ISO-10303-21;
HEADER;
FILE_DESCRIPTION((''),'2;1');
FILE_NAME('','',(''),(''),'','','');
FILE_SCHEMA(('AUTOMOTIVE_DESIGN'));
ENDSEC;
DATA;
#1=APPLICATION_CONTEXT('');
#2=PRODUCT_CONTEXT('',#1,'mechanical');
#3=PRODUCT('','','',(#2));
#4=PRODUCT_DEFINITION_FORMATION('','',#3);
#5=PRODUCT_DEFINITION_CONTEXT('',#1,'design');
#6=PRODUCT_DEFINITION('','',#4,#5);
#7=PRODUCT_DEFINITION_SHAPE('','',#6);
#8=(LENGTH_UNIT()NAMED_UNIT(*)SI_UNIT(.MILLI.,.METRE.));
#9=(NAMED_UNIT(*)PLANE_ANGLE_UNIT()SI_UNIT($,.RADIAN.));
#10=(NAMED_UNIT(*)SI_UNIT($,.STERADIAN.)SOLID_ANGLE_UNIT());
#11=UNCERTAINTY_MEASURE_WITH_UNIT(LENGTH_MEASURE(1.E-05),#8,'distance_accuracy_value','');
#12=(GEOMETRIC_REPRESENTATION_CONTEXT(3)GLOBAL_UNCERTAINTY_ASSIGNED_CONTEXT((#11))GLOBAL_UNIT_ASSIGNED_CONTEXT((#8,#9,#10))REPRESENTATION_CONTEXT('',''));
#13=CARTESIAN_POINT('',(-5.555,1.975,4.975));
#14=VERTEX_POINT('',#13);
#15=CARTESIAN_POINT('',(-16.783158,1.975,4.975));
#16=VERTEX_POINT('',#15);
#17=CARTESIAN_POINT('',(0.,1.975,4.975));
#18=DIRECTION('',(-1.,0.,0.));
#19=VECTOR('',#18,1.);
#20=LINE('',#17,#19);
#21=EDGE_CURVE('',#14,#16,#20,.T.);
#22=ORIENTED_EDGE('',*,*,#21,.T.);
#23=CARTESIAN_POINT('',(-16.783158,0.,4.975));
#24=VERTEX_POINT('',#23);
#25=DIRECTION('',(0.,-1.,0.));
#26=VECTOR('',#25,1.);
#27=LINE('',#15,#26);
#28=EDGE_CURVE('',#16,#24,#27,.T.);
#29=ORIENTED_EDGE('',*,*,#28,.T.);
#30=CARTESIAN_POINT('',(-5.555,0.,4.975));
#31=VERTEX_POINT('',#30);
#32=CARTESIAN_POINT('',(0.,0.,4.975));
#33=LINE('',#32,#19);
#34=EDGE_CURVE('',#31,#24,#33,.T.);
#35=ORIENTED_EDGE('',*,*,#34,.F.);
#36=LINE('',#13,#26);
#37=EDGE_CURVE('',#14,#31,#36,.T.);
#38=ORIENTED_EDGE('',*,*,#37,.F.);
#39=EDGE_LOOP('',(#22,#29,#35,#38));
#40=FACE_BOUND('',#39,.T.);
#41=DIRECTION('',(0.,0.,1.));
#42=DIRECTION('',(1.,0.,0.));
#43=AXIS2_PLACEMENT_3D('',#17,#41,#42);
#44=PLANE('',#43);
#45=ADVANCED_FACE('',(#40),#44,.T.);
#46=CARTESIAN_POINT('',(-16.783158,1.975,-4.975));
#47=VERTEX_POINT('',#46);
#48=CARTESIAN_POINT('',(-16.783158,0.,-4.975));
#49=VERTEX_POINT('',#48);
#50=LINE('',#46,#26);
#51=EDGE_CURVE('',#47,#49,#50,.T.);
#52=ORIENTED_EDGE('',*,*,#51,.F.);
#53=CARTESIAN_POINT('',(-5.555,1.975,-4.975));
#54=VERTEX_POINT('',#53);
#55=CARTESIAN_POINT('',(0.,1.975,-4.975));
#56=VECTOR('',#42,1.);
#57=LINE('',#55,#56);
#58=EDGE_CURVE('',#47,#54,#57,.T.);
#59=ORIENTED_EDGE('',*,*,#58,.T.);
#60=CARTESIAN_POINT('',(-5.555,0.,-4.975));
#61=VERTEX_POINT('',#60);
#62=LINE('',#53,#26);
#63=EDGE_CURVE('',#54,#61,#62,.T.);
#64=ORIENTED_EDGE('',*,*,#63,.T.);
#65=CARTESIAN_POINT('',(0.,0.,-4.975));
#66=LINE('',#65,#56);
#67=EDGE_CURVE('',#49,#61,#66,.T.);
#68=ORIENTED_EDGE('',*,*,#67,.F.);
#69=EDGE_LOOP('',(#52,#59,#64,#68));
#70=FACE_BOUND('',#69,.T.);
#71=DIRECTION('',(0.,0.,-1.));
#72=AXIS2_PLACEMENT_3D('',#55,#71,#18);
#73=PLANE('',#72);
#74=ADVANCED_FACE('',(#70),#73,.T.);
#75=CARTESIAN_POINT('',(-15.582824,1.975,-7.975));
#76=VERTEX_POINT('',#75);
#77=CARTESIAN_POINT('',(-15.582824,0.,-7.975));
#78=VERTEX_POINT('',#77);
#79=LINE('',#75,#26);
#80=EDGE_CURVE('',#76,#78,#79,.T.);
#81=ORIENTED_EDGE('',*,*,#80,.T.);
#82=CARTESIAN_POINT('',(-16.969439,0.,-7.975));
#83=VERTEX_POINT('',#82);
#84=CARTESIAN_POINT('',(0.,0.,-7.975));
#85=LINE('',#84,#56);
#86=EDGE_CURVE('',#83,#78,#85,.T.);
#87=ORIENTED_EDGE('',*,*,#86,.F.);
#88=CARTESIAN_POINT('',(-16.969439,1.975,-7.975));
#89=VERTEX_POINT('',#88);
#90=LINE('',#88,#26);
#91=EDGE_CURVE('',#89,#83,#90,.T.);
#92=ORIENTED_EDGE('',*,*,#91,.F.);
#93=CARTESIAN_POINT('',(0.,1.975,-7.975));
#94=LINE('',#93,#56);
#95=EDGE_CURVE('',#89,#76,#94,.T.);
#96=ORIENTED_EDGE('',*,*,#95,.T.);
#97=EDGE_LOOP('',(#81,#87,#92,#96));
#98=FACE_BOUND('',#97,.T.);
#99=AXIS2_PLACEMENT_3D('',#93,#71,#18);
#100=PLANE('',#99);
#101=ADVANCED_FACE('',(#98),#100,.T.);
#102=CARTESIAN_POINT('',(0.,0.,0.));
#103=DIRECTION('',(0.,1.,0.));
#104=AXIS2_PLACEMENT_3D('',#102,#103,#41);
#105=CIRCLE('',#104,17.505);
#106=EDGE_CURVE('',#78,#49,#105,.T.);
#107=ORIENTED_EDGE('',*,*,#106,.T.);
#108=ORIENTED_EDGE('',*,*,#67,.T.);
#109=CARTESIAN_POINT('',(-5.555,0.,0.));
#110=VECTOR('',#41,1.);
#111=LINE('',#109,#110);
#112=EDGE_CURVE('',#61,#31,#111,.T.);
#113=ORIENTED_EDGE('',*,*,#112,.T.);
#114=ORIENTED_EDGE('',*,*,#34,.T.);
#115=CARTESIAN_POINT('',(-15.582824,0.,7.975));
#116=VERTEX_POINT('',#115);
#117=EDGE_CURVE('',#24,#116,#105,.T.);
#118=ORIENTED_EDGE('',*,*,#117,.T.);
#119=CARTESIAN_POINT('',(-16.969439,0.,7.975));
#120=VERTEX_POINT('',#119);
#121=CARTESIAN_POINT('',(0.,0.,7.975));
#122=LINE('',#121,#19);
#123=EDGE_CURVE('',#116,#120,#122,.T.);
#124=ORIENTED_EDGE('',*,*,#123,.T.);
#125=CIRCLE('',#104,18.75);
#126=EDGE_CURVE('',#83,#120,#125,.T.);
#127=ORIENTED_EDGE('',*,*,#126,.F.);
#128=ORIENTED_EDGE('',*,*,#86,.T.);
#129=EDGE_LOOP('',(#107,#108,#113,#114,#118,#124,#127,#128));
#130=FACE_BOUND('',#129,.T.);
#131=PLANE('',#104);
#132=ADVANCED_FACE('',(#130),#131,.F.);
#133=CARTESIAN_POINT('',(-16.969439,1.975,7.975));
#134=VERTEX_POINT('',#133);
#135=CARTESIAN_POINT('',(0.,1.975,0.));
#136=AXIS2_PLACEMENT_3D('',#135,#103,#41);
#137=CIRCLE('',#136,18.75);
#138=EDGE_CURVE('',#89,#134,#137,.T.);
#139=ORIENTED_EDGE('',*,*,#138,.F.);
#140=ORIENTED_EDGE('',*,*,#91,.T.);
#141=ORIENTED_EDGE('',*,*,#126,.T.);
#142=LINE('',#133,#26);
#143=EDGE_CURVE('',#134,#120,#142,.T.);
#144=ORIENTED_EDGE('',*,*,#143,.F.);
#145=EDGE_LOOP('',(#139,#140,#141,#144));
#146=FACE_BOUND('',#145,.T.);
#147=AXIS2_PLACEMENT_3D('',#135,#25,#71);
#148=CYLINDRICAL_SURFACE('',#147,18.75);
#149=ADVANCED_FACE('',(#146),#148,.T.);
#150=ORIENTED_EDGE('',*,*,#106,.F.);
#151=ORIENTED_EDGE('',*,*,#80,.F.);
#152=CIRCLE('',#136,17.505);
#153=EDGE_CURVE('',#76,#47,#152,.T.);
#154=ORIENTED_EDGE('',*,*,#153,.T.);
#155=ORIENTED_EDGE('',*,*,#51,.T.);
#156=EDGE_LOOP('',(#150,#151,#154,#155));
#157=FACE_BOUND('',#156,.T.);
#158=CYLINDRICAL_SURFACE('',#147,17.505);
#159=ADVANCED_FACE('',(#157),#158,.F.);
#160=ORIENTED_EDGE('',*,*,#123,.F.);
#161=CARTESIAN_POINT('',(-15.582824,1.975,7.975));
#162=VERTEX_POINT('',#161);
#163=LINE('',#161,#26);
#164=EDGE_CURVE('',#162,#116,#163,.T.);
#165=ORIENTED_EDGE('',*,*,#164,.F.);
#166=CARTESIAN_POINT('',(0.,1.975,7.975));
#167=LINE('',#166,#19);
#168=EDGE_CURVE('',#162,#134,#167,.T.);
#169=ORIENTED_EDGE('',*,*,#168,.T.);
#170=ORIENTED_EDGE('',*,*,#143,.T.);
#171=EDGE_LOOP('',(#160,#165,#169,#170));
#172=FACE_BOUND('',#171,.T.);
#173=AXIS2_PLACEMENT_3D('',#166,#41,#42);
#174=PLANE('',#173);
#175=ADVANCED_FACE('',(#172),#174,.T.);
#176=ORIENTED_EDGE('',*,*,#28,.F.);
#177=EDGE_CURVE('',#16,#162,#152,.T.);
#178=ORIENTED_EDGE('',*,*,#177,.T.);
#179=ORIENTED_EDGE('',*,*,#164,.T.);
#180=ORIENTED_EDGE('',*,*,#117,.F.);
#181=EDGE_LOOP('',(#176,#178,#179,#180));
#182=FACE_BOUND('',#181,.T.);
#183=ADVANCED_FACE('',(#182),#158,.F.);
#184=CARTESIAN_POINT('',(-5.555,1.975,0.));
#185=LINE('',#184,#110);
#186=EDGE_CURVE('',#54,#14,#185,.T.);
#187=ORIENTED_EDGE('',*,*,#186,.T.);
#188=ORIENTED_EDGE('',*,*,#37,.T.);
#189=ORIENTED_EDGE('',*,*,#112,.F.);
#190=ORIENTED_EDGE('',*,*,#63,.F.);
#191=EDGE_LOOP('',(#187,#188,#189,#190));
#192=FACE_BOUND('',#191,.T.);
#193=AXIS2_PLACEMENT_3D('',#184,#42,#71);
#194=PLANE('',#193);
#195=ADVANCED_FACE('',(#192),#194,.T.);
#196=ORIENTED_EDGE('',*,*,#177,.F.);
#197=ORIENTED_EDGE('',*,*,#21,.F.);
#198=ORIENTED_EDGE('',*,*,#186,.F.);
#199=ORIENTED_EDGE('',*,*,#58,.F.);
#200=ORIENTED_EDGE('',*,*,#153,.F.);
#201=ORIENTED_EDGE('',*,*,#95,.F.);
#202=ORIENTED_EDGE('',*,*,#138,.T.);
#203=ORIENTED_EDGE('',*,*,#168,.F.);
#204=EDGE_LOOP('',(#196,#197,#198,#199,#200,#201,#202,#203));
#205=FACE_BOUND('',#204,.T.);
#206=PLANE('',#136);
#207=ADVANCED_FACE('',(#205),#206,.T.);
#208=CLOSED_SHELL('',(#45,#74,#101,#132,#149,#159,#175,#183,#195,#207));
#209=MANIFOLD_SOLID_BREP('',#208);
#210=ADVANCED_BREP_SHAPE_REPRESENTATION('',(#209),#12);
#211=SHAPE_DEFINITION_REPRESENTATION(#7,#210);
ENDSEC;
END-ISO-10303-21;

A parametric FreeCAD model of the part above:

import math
import FreeCAD as App
import Part
import Sketcher
from FreeCAD import Vector
Q = App.Units.Quantity

doc = App.newDocument("Part")
body = doc.addObject("PartDesign::Body", "Body")

sketch1 = body.newObject("Sketcher::SketchObject", "Sketch")
sketch1.AttachmentSupport = (doc.getObject("XZ_Plane"), [""])
sketch1.MapMode = "FlatFace"
sketch1.addGeometry([
    Part.ArcOfCircle(Part.Circle(Vector(0, 0, 0), Vector(0, 0, 1), 18.75), math.radians(154.828236), math.radians(205.171764)),
    Part.LineSegment(Vector(-16.969439, 7.975, 0), Vector(-15.582824, 7.975, 0)),
    Part.ArcOfCircle(Part.Circle(Vector(0, 0, 0), Vector(0, 0, 1), 17.505), math.radians(152.897476), math.radians(163.488696)),
    Part.LineSegment(Vector(-16.783158, 4.975, 0), Vector(-5.555, 4.975, 0)),
    Part.LineSegment(Vector(-5.555, 4.975, 0), Vector(-5.555, -4.975, 0)),
    Part.LineSegment(Vector(-5.555, -4.975, 0), Vector(-16.783158, -4.975, 0)),
    Part.ArcOfCircle(Part.Circle(Vector(0, 0, 0), Vector(0, 0, 1), 17.505), math.radians(-163.488696), math.radians(-152.897476)),
    Part.LineSegment(Vector(-15.582824, -7.975, 0), Vector(-16.969439, -7.975, 0)),
], False)
sketch1.addConstraint([
    Sketcher.Constraint("Coincident", 0, 1, 1, 1),
    Sketcher.Constraint("Coincident", 1, 2, 2, 1),
    Sketcher.Constraint("Coincident", 2, 2, 3, 1),
    Sketcher.Constraint("Coincident", 3, 2, 4, 1),
    Sketcher.Constraint("Coincident", 4, 2, 5, 1),
    Sketcher.Constraint("Coincident", 5, 2, 6, 1),
    Sketcher.Constraint("Coincident", 6, 2, 7, 1),
    Sketcher.Constraint("Coincident", 7, 2, 0, 2),
    Sketcher.Constraint("Horizontal", 1),
    Sketcher.Constraint("Horizontal", 3),
    Sketcher.Constraint("Vertical", 4),
    Sketcher.Constraint("Horizontal", 5),
    Sketcher.Constraint("Horizontal", 7),
    Sketcher.Constraint("Coincident", 0, 3, -1, 1),
    Sketcher.Constraint("Coincident", 2, 3, -1, 1),
    Sketcher.Constraint("Coincident", 6, 3, -1, 1),
    Sketcher.Constraint("Equal", 2, 6),
    Sketcher.Constraint("Vertical", 2, 2, 5, 2),
    Sketcher.Constraint("Vertical", 1, 2, 6, 2),
    Sketcher.Constraint("Radius", 0, Q("18.75 mm")),
    Sketcher.Constraint("Radius", 2, Q("17.505 mm")),
    Sketcher.Constraint("DistanceY", 2, 2, 0, 1, Q("3 mm")),
    Sketcher.Constraint("DistanceY", 4, 2, 4, 1, Q("9.95 mm")),
    Sketcher.Constraint("DistanceX", 3, 2, -1, 1, Q("5.555 mm")),
])
pad1 = body.newObject("PartDesign::Pad", "Pad")
pad1.Profile = sketch1
pad1.Length = 1.975
pad1.Reversed = True

doc.recompute()
